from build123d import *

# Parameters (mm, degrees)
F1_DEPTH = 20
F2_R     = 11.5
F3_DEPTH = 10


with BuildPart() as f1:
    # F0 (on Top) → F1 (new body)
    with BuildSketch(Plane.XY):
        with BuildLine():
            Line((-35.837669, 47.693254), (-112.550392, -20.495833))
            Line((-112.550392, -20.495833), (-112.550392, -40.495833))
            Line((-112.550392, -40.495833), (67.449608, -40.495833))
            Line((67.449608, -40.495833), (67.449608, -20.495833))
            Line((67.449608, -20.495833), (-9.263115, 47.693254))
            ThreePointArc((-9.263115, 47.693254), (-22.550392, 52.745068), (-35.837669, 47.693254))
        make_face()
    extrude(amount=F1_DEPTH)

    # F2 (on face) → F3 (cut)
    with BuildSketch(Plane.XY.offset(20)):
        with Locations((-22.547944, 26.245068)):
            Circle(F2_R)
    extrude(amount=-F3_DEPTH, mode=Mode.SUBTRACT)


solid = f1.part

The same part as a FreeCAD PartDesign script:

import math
import FreeCAD as App
import Part
import Sketcher
Q = App.Units.Quantity

doc = App.newDocument("Part")
body = doc.addObject("PartDesign::Body", "Body")

# Sketch on XY plane
sketch1 = body.newObject("Sketcher::SketchObject", "Sketch")
sketch1.AttachmentSupport = (doc.getObject("XY_Plane"), [""])
sketch1.MapMode = "FlatFace"
sketch1.addGeometry(Part.LineSegment(App.Vector(-36, 48, 0), App.Vector(-113, -20, 0)), False)
sketch1.addGeometry(Part.LineSegment(App.Vector(-113, -20, 0), App.Vector(-113, -40, 0)), False)
sketch1.addGeometry(Part.LineSegment(App.Vector(-113, -40, 0), App.Vector(67, -40, 0)), False)
sketch1.addGeometry(Part.LineSegment(App.Vector(67, -40, 0), App.Vector(67, -20, 0)), False)
sketch1.addGeometry(Part.LineSegment(App.Vector(67, -20, 0), App.Vector(-9, 48, 0)), False)
sketch1.addGeometry(Part.ArcOfCircle(Part.Circle(App.Vector(-23, 33, 0), App.Vector(0, 0, 1), 20), math.radians(48), math.radians(132)), False)
sketch1.addConstraint(Sketcher.Constraint("Coincident", 0, 2, 1, 1))
sketch1.addConstraint(Sketcher.Constraint("Coincident", 1, 2, 2, 1))
sketch1.addConstraint(Sketcher.Constraint("Coincident", 2, 2, 3, 1))
sketch1.addConstraint(Sketcher.Constraint("Coincident", 3, 2, 4, 1))
sketch1.addConstraint(Sketcher.Constraint("Tangent", 4, 2, 5, 1))
sketch1.addConstraint(Sketcher.Constraint("Tangent", 5, 2, 0, 1))
sketch1.addConstraint(Sketcher.Constraint("Vertical", 1))
sketch1.addConstraint(Sketcher.Constraint("Horizontal", 2))
sketch1.addConstraint(Sketcher.Constraint("Vertical", 3))
sketch1.addConstraint(Sketcher.Constraint("Horizontal", 0, 2, 3, 2))
sketch1.addConstraint(Sketcher.Constraint("Horizontal", 4, 2, 5, 2))
sketch1.addConstraint(Sketcher.Constraint("Radius", 5, Q("19.999999 mm")))
sketch1.addConstraint(Sketcher.Constraint("DistanceX", 2, 1, 2, 2, Q("180 mm")))
sketch1.addConstraint(Sketcher.Constraint("DistanceY", 1, 2, 1, 1, Q("20 mm")))
sketch1.addConstraint(Sketcher.Constraint("DistanceY", 0, 2, 5, 3, Q("53.240902 mm")))
sketch1.addConstraint(Sketcher.Constraint("DistanceX", 5, 3, -1, 1, Q("22.550392 mm")))
sketch1.addConstraint(Sketcher.Constraint("DistanceY", -1, 1, 5, 3, Q("32.745069 mm")))
pad1 = body.newObject("PartDesign::Pad", "Pad")
pad1.Profile = sketch1
pad1.Length = 20

# Sketch on XY plane
sketch2 = body.newObject("Sketcher::SketchObject", "Sketch001")
sketch2.AttachmentSupport = (doc.getObject("XY_Plane"), [""])
sketch2.MapMode = "FlatFace"
sketch2.AttachmentOffset = App.Placement(App.Vector(0, 0, 20), App.Rotation())
sketch2.addGeometry(Part.Circle(App.Vector(-23, 26, 0), App.Vector(0, 0, 1), 12), False)
sketch2.addConstraint(Sketcher.Constraint("Diameter", 0, Q("23 mm")))
sketch2.addConstraint(Sketcher.Constraint("DistanceY", -1, 1, 0, 3, Q("26.245068 mm")))
sketch2.addConstraint(Sketcher.Constraint("DistanceX", 0, 3, -1, 1, Q("22.547944 mm")))
pocket1 = body.newObject("PartDesign::Pocket", "Pocket")
pocket1.Profile = sketch2
pocket1.Length = 10

doc.recompute()
